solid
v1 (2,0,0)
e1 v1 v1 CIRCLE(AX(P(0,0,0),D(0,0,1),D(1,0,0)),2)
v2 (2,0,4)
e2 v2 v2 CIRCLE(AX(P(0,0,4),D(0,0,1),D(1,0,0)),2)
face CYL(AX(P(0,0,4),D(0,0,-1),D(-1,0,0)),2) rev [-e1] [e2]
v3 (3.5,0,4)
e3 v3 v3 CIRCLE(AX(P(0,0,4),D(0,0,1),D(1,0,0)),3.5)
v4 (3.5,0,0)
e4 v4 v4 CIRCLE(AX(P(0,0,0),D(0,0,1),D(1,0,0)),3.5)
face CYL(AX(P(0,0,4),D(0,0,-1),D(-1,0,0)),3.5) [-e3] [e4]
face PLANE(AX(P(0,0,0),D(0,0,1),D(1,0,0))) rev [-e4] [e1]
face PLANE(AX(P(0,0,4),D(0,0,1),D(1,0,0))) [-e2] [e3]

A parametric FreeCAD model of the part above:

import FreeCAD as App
import Part
import Sketcher

doc = App.newDocument("Part")
body = doc.addObject("PartDesign::Body", "Body")

# Sketch on XY plane
sketch1 = body.newObject("Sketcher::SketchObject", "Sketch")
sketch1.AttachmentSupport = (doc.getObject("XY_Plane"), [""])
sketch1.MapMode = "FlatFace"
sketch1.addGeometry(Part.Circle(App.Vector(0, 0, 0), App.Vector(0, 0, 1), 3.5), False)
sketch1.addGeometry(Part.Circle(App.Vector(0, 0, 0), App.Vector(0, 0, 1), 2), False)
sketch1.addConstraint(Sketcher.Constraint("Coincident", 0, 3, -1, 1))
sketch1.addConstraint(Sketcher.Constraint("Coincident", 1, 3, -1, 1))
sketch1.addConstraint(Sketcher.Constraint("Diameter", 0, 7.0))
sketch1.addConstraint(Sketcher.Constraint("Diameter", 1, 4.0))
pad1 = body.newObject("PartDesign::Pad", "Pad")
pad1.Profile = sketch1
pad1.Length = 4

doc.recompute()
